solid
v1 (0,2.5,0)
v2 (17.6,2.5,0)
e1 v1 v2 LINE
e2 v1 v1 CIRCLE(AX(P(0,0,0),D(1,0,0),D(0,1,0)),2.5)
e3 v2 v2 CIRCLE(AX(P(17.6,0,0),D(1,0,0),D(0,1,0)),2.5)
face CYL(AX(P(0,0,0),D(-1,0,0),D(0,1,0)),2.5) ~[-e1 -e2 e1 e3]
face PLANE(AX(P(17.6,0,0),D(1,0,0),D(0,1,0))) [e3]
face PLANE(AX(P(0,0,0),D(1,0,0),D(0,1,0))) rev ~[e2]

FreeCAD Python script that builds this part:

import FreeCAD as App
import Part
import Sketcher

V = App.Vector
Q = App.Units.Quantity

doc = App.newDocument("Part")
body = doc.addObject("PartDesign::Body", "Body")

sketch1 = body.newObject("Sketcher::SketchObject", "Sketch")
sketch1.AttachmentSupport = (doc.getObject("YZ_Plane"), [""])
sketch1.MapMode = "FlatFace"
sketch1.addGeometry(Part.Circle(V(0, 0, 0), V(0, 0, 1), 2.5), False)
sketch1.addConstraint(Sketcher.Constraint("Coincident", 0, 3, -1, 1))
sketch1.addConstraint(Sketcher.Constraint("Diameter", 0, Q("5 mm")))
pad1 = body.newObject("PartDesign::Pad", "Pad")
pad1.Profile = sketch1
pad1.Length = 17.6

doc.recompute()
